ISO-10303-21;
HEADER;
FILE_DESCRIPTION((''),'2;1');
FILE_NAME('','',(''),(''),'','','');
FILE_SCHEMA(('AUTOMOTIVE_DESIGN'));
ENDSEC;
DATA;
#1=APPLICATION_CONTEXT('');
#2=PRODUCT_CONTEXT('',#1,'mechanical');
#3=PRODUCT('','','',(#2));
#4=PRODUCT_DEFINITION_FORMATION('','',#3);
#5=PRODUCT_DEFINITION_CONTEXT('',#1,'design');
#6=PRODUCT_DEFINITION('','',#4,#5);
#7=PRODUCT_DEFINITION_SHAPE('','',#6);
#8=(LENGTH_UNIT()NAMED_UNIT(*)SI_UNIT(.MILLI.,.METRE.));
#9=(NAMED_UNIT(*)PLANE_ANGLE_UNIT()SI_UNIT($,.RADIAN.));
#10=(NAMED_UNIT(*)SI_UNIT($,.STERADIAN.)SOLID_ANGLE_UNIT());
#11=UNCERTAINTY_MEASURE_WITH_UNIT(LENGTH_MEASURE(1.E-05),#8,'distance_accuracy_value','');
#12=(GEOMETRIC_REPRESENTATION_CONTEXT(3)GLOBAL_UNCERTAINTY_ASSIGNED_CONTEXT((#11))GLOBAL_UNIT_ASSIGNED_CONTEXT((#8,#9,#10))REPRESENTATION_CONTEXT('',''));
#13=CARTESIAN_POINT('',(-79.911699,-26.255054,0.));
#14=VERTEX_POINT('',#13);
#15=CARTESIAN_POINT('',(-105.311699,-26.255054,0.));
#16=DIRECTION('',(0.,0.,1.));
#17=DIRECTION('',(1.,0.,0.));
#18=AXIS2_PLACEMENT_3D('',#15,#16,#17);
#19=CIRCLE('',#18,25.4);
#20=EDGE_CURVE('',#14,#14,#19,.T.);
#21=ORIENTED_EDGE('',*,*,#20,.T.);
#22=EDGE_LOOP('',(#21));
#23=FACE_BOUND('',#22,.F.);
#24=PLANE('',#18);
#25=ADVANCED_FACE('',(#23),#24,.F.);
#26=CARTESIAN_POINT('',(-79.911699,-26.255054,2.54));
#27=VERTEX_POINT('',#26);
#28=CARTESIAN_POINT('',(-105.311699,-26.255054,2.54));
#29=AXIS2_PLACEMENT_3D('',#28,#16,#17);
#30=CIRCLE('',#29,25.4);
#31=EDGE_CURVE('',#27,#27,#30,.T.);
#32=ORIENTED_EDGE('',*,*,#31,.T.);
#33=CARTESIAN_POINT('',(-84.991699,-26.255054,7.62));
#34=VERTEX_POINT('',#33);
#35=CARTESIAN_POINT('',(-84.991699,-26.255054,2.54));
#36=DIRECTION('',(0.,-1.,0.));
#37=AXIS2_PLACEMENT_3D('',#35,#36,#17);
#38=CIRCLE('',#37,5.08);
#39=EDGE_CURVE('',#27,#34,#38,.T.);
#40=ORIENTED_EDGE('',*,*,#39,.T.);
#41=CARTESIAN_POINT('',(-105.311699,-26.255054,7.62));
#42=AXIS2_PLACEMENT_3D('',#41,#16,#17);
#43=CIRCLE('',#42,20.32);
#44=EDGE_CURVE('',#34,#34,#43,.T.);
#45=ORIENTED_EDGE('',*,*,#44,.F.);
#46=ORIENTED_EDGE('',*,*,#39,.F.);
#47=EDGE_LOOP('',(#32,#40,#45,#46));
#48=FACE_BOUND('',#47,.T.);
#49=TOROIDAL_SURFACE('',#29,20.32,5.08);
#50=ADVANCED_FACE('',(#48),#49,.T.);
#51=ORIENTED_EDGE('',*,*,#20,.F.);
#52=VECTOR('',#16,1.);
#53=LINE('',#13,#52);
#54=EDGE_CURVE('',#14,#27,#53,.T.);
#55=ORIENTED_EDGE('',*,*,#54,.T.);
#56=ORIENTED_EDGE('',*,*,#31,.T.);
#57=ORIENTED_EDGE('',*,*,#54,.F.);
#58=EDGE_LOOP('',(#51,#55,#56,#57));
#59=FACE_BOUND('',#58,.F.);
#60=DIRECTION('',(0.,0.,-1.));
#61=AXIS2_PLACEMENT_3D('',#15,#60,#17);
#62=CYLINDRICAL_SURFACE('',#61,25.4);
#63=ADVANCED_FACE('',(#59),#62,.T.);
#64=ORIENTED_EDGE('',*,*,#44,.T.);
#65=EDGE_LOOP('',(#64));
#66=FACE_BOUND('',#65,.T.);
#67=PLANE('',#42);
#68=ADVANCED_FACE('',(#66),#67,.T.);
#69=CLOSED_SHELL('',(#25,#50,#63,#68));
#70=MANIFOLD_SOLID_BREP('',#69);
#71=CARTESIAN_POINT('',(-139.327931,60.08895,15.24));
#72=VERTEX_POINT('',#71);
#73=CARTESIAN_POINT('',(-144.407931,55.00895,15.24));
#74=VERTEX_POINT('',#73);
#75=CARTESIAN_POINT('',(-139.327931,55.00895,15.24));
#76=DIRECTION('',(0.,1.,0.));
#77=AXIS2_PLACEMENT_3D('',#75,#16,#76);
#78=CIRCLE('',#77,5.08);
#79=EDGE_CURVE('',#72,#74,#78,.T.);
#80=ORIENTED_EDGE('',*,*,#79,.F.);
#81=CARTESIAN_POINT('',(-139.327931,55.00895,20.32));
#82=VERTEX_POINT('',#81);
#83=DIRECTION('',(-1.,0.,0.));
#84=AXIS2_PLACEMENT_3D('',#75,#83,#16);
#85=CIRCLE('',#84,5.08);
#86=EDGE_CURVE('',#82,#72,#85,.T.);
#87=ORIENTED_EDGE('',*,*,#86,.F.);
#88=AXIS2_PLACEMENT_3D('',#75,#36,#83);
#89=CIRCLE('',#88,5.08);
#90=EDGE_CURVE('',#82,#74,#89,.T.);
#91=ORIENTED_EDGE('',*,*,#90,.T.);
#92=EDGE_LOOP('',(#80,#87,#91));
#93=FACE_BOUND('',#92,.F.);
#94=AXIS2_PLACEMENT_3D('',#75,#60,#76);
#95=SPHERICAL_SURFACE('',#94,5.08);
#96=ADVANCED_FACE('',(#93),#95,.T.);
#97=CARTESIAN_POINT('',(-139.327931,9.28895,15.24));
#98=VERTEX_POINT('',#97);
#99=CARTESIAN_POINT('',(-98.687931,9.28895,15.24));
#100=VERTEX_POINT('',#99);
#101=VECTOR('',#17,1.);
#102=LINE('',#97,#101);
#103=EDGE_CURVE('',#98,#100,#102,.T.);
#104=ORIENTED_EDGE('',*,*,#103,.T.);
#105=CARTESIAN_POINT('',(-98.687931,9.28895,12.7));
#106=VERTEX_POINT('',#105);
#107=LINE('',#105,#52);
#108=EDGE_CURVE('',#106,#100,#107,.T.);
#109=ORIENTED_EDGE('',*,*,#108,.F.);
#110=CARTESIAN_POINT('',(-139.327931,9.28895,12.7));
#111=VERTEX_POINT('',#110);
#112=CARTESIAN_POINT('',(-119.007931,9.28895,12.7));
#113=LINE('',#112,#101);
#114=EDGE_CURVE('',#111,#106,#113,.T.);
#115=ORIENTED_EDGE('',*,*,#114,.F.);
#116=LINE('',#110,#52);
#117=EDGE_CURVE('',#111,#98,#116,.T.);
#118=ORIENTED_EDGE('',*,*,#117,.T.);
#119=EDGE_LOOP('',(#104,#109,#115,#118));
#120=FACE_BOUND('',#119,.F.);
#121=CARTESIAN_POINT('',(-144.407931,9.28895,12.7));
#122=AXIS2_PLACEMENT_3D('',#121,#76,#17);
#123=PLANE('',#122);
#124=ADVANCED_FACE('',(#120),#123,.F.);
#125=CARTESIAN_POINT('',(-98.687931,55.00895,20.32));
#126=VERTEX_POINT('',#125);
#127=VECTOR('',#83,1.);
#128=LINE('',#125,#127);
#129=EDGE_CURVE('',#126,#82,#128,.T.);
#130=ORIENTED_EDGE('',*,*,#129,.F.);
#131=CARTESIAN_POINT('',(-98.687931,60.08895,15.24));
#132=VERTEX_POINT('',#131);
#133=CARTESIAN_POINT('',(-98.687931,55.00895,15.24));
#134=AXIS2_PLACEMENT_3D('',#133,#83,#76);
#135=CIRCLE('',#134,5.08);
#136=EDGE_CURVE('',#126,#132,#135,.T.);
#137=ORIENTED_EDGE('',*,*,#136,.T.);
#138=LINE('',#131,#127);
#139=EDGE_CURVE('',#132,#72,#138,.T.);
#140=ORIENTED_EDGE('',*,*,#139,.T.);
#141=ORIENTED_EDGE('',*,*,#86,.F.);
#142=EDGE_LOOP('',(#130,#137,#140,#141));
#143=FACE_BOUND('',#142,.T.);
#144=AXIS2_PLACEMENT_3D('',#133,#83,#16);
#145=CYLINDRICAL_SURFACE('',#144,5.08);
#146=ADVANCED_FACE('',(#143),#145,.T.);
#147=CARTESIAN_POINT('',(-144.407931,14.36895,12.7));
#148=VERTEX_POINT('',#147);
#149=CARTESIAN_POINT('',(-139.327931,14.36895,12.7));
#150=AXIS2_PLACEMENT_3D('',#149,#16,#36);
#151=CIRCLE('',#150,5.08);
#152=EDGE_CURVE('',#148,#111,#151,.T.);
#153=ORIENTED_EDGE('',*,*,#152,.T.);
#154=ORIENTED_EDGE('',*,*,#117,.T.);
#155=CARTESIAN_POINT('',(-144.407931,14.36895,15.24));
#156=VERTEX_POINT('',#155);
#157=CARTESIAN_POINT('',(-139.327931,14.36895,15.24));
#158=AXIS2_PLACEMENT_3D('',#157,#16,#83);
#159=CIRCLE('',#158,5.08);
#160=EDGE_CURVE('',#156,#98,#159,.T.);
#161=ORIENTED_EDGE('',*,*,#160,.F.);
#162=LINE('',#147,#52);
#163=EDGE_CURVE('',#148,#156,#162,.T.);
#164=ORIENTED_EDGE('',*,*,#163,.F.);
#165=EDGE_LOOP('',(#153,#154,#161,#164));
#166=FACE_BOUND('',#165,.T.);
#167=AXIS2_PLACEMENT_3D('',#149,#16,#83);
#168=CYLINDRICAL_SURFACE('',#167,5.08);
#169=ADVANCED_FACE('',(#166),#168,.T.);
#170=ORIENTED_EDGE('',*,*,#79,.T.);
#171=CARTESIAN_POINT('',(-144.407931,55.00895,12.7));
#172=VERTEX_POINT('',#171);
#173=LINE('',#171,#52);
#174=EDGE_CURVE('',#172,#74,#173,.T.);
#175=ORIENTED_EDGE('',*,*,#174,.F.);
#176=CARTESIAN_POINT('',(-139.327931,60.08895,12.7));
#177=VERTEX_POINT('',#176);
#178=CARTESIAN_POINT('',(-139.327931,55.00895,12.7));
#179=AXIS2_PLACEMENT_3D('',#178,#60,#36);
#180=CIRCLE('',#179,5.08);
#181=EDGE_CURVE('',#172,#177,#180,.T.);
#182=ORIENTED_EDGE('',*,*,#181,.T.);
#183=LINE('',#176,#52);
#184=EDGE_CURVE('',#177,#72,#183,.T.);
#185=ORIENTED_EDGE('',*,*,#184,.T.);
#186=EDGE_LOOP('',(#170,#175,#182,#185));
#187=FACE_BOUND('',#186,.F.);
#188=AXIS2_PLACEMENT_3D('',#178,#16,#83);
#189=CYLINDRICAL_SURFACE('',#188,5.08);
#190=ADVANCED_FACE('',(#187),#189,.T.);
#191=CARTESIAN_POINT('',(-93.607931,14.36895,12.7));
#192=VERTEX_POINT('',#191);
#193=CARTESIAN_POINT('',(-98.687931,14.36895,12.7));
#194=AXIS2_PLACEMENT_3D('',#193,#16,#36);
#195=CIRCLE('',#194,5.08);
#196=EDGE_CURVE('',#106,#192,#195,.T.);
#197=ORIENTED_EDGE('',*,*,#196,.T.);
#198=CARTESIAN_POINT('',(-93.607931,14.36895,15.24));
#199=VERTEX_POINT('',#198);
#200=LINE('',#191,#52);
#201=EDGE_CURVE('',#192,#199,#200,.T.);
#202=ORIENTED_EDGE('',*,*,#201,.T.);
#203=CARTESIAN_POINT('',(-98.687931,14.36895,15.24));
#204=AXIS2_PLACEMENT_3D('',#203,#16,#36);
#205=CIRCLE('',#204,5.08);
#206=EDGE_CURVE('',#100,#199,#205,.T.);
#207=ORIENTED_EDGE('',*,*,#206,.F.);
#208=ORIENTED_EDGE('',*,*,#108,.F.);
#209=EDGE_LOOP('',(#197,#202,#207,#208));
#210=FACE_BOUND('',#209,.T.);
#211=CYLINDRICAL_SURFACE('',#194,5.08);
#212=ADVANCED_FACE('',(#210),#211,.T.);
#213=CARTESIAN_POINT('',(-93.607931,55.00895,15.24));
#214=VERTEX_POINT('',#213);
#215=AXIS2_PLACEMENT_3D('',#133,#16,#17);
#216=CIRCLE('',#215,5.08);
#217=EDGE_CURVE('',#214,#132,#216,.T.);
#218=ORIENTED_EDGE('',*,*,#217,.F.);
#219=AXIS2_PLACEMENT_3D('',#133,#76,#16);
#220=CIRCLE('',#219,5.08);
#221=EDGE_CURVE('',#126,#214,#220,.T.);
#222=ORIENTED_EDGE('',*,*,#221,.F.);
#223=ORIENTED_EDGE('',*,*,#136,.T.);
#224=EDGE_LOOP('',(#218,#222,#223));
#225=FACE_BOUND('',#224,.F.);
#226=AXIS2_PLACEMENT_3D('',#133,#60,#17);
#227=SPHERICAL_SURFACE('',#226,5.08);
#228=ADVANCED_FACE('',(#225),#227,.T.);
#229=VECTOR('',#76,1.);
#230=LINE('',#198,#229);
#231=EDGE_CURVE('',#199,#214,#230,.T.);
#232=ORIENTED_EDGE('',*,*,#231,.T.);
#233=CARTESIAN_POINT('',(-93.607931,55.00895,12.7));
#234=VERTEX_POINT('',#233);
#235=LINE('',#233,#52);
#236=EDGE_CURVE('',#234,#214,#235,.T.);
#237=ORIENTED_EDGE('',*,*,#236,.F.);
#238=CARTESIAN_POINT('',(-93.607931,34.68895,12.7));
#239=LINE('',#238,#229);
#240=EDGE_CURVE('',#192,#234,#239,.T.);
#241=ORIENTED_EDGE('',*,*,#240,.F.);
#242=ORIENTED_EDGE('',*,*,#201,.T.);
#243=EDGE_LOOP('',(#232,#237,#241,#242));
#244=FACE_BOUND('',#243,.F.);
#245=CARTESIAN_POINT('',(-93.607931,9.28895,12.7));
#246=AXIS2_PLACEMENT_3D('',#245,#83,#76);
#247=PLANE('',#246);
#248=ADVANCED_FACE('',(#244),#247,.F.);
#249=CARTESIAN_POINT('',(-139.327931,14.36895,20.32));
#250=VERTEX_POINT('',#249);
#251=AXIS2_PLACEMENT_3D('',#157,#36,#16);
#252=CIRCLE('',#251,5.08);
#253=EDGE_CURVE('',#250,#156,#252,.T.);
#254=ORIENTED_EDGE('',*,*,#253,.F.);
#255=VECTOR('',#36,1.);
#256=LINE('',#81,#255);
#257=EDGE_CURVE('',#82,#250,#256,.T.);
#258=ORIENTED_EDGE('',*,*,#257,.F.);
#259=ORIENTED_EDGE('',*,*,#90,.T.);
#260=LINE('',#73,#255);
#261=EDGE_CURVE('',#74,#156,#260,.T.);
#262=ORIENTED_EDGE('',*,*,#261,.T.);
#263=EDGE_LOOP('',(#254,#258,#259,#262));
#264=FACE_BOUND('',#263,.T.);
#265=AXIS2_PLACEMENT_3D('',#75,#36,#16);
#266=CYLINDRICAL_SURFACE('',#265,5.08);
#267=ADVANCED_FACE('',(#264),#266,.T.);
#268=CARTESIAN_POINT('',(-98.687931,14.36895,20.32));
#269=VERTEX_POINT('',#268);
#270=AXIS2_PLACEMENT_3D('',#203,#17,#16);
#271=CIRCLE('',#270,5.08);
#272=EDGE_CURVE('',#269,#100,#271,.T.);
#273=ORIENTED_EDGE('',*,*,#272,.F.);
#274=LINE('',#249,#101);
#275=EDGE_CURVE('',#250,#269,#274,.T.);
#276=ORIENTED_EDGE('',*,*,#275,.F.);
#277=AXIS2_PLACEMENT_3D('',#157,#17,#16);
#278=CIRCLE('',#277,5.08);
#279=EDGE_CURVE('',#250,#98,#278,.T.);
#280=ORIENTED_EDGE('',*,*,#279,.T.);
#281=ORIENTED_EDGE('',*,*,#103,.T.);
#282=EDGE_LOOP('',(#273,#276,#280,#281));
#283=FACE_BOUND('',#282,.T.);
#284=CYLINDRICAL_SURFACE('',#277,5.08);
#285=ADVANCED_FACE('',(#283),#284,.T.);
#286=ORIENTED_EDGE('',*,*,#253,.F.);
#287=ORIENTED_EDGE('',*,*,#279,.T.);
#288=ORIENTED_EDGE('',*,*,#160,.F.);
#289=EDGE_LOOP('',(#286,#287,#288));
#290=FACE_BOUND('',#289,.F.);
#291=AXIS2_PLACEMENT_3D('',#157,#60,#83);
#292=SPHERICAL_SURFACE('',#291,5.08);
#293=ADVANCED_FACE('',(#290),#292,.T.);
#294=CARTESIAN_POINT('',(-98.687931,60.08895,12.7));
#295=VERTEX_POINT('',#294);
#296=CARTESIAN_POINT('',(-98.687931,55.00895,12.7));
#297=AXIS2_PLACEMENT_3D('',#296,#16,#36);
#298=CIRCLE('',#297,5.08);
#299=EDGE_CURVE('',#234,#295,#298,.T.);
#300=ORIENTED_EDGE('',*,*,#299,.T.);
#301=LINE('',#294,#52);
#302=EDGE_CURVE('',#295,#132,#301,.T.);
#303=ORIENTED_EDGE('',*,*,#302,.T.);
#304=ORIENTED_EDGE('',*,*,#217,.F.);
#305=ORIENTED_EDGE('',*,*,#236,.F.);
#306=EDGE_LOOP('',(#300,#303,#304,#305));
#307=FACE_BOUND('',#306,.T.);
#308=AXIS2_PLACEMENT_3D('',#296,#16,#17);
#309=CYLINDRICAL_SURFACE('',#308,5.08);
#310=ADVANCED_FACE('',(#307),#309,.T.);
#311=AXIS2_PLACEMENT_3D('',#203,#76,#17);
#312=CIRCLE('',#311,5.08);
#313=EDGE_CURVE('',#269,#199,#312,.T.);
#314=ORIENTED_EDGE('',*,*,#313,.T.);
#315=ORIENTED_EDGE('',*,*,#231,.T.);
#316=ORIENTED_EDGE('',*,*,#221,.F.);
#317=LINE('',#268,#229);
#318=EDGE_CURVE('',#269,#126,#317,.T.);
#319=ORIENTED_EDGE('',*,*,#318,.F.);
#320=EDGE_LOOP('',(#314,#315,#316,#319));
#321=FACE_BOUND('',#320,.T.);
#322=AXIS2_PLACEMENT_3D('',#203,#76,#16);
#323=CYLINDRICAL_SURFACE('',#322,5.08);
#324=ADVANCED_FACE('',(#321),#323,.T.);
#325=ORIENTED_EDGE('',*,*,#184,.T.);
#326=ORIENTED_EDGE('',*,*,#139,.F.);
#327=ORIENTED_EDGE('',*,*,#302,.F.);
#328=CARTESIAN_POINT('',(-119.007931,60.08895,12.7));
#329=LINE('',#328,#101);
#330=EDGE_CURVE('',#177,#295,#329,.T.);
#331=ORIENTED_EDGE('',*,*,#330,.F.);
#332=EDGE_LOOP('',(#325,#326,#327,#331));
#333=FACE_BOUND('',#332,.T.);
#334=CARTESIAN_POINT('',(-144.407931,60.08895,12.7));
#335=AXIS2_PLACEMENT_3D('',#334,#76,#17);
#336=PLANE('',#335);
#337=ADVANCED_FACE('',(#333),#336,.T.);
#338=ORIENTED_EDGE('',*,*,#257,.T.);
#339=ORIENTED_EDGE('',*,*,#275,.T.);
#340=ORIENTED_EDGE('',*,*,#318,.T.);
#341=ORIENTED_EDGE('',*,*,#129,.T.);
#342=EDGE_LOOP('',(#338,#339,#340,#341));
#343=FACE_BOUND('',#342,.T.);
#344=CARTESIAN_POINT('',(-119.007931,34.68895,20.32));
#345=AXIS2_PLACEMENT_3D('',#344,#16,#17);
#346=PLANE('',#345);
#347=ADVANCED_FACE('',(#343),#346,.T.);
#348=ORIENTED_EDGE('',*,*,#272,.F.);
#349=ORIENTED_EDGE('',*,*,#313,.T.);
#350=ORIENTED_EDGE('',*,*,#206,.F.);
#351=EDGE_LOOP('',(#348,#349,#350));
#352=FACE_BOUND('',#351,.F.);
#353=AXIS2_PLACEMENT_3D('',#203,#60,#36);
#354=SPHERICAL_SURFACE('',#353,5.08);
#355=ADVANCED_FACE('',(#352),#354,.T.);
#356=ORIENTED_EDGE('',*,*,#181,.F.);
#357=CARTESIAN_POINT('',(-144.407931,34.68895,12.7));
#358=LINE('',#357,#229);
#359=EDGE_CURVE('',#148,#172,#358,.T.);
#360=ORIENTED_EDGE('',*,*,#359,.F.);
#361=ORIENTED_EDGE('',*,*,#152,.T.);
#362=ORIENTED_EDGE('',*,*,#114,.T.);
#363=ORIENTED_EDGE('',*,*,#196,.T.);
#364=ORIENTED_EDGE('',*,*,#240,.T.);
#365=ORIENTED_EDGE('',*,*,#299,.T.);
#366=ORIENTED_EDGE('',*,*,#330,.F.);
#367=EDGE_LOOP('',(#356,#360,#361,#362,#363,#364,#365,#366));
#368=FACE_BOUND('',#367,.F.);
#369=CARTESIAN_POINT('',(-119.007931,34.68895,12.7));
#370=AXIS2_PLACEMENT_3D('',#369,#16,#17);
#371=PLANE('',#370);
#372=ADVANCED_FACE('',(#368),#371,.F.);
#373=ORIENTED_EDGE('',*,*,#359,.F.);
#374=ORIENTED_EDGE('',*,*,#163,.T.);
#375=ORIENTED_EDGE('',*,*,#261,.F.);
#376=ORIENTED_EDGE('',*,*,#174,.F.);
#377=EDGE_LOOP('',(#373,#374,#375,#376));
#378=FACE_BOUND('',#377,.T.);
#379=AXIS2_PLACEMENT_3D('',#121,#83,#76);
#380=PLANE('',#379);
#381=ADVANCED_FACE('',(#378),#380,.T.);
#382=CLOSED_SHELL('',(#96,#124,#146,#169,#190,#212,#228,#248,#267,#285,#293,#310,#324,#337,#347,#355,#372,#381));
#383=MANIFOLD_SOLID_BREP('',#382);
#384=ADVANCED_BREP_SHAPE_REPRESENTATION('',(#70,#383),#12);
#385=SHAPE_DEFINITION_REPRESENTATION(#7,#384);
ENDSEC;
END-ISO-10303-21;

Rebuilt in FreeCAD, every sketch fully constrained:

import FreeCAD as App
import Part
import Sketcher
Q = App.Units.Quantity


def edges_at(feature, points):
    """Names of the edges that pass closest to the given points."""
    edges = feature.Shape.Edges
    near = lambda p: min(range(len(edges)), key=lambda i: edges[i].distToShape(Part.Vertex(*p))[0])
    return sorted({f"Edge{near(p) + 1}" for p in points})


def add_polygon(sketch, points):
    """Adds a closed chain of lines whose ends are joined by coincident constraints."""
    first, n = sketch.GeometryCount, len(points)
    for a, b in zip(points, points[1:] + points[:1]):
        sketch.addGeometry(Part.LineSegment(App.Vector(*a, 0), App.Vector(*b, 0)), False)
    for i in range(n):
        sketch.addConstraint(Sketcher.Constraint("Coincident", first + i, 2, first + (i + 1) % n, 1))

doc = App.newDocument("Part")
body = doc.addObject("PartDesign::Body", "Body")

# Sketch on XY plane
sketch1 = body.newObject("Sketcher::SketchObject", "Sketch")
sketch1.AttachmentSupport = (doc.getObject("XY_Plane"), [""])
sketch1.MapMode = "FlatFace"
sketch1.addGeometry(Part.Circle(App.Vector(-105.311699, -26.255054, 0), App.Vector(0, 0, 1), 25.4), False)
sketch1.addConstraint([
    Sketcher.Constraint("Diameter", 0, Q("2 in")),
    Sketcher.Constraint("DistanceX", 0, 3, -1, 1, 105.311699),
    Sketcher.Constraint("DistanceY", 0, 3, -1, 1, 26.255054),
])
pad1 = body.newObject("PartDesign::Pad", "Pad")
pad1.Profile = sketch1
pad1.Length = Q("0.3 in")
doc.recompute()

fillet = body.newObject("PartDesign::Fillet", "Fillet")
fillet.Base = (pad1, edges_at(pad1, [(-130.712, -26.255, 7.62)]))
fillet.Radius = Q("0.2 in")
body2 = doc.addObject("PartDesign::Body", "Body001")

# Sketch on XY plane
sketch2 = body2.newObject("Sketcher::SketchObject", "Sketch001")
sketch2.AttachmentSupport = (doc.getObject("XY_Plane001"), [""])
sketch2.MapMode = "FlatFace"
sketch2.AttachmentOffset = App.Placement(App.Vector(0, 0, 0.5 * 25.4), App.Rotation())
add_polygon(sketch2, [(-144.407931, 60.08895), (-144.407931, 9.28895), (-93.607931, 9.28895), (-93.607931, 60.08895)])  # lines 0-3
sketch2.addConstraint([
    Sketcher.Constraint("Vertical", 0),
    Sketcher.Constraint("Horizontal", 1),
    Sketcher.Constraint("Vertical", 2),
    Sketcher.Constraint("Horizontal", 3),
    Sketcher.Constraint("Equal", 3, 0),
    Sketcher.Constraint("DistanceX", 1, 1, 1, 2, Q("2 in")),
    Sketcher.Constraint("DistanceX", 0, 2, -1, 1, 144.407931),
    Sketcher.Constraint("DistanceY", -1, 1, 0, 2, 9.28895),
])
pad2 = body2.newObject("PartDesign::Pad", "Pad001")
pad2.Profile = sketch2
pad2.Length = Q("0.3 in")
doc.recompute()

fillet2 = body2.newObject("PartDesign::Fillet", "Fillet001")
fillet2.Base = (pad2, edges_at(pad2, [
    (-93.608, 60.089, 16.51),
    (-93.608, 9.289, 16.51),
    (-144.408, 60.089, 16.51),
    (-144.408, 9.289, 16.51),
]))
fillet2.Radius = Q("0.2 in")
doc.recompute()

fillet3 = body2.newObject("PartDesign::Fillet", "Fillet002")
fillet3.Base = (fillet2, edges_at(fillet2, [
    (-119.008, 9.289, 20.32),
    (-142.92, 10.777, 20.32),
    (-95.096, 10.777, 20.32),
    (-144.408, 34.689, 20.32),
    (-93.608, 34.689, 20.32),
    (-142.92, 58.601, 20.32),
    (-95.096, 58.601, 20.32),
    (-119.008, 60.089, 20.32),
]))
fillet3.Radius = Q("0.2 in")

doc.recompute()
